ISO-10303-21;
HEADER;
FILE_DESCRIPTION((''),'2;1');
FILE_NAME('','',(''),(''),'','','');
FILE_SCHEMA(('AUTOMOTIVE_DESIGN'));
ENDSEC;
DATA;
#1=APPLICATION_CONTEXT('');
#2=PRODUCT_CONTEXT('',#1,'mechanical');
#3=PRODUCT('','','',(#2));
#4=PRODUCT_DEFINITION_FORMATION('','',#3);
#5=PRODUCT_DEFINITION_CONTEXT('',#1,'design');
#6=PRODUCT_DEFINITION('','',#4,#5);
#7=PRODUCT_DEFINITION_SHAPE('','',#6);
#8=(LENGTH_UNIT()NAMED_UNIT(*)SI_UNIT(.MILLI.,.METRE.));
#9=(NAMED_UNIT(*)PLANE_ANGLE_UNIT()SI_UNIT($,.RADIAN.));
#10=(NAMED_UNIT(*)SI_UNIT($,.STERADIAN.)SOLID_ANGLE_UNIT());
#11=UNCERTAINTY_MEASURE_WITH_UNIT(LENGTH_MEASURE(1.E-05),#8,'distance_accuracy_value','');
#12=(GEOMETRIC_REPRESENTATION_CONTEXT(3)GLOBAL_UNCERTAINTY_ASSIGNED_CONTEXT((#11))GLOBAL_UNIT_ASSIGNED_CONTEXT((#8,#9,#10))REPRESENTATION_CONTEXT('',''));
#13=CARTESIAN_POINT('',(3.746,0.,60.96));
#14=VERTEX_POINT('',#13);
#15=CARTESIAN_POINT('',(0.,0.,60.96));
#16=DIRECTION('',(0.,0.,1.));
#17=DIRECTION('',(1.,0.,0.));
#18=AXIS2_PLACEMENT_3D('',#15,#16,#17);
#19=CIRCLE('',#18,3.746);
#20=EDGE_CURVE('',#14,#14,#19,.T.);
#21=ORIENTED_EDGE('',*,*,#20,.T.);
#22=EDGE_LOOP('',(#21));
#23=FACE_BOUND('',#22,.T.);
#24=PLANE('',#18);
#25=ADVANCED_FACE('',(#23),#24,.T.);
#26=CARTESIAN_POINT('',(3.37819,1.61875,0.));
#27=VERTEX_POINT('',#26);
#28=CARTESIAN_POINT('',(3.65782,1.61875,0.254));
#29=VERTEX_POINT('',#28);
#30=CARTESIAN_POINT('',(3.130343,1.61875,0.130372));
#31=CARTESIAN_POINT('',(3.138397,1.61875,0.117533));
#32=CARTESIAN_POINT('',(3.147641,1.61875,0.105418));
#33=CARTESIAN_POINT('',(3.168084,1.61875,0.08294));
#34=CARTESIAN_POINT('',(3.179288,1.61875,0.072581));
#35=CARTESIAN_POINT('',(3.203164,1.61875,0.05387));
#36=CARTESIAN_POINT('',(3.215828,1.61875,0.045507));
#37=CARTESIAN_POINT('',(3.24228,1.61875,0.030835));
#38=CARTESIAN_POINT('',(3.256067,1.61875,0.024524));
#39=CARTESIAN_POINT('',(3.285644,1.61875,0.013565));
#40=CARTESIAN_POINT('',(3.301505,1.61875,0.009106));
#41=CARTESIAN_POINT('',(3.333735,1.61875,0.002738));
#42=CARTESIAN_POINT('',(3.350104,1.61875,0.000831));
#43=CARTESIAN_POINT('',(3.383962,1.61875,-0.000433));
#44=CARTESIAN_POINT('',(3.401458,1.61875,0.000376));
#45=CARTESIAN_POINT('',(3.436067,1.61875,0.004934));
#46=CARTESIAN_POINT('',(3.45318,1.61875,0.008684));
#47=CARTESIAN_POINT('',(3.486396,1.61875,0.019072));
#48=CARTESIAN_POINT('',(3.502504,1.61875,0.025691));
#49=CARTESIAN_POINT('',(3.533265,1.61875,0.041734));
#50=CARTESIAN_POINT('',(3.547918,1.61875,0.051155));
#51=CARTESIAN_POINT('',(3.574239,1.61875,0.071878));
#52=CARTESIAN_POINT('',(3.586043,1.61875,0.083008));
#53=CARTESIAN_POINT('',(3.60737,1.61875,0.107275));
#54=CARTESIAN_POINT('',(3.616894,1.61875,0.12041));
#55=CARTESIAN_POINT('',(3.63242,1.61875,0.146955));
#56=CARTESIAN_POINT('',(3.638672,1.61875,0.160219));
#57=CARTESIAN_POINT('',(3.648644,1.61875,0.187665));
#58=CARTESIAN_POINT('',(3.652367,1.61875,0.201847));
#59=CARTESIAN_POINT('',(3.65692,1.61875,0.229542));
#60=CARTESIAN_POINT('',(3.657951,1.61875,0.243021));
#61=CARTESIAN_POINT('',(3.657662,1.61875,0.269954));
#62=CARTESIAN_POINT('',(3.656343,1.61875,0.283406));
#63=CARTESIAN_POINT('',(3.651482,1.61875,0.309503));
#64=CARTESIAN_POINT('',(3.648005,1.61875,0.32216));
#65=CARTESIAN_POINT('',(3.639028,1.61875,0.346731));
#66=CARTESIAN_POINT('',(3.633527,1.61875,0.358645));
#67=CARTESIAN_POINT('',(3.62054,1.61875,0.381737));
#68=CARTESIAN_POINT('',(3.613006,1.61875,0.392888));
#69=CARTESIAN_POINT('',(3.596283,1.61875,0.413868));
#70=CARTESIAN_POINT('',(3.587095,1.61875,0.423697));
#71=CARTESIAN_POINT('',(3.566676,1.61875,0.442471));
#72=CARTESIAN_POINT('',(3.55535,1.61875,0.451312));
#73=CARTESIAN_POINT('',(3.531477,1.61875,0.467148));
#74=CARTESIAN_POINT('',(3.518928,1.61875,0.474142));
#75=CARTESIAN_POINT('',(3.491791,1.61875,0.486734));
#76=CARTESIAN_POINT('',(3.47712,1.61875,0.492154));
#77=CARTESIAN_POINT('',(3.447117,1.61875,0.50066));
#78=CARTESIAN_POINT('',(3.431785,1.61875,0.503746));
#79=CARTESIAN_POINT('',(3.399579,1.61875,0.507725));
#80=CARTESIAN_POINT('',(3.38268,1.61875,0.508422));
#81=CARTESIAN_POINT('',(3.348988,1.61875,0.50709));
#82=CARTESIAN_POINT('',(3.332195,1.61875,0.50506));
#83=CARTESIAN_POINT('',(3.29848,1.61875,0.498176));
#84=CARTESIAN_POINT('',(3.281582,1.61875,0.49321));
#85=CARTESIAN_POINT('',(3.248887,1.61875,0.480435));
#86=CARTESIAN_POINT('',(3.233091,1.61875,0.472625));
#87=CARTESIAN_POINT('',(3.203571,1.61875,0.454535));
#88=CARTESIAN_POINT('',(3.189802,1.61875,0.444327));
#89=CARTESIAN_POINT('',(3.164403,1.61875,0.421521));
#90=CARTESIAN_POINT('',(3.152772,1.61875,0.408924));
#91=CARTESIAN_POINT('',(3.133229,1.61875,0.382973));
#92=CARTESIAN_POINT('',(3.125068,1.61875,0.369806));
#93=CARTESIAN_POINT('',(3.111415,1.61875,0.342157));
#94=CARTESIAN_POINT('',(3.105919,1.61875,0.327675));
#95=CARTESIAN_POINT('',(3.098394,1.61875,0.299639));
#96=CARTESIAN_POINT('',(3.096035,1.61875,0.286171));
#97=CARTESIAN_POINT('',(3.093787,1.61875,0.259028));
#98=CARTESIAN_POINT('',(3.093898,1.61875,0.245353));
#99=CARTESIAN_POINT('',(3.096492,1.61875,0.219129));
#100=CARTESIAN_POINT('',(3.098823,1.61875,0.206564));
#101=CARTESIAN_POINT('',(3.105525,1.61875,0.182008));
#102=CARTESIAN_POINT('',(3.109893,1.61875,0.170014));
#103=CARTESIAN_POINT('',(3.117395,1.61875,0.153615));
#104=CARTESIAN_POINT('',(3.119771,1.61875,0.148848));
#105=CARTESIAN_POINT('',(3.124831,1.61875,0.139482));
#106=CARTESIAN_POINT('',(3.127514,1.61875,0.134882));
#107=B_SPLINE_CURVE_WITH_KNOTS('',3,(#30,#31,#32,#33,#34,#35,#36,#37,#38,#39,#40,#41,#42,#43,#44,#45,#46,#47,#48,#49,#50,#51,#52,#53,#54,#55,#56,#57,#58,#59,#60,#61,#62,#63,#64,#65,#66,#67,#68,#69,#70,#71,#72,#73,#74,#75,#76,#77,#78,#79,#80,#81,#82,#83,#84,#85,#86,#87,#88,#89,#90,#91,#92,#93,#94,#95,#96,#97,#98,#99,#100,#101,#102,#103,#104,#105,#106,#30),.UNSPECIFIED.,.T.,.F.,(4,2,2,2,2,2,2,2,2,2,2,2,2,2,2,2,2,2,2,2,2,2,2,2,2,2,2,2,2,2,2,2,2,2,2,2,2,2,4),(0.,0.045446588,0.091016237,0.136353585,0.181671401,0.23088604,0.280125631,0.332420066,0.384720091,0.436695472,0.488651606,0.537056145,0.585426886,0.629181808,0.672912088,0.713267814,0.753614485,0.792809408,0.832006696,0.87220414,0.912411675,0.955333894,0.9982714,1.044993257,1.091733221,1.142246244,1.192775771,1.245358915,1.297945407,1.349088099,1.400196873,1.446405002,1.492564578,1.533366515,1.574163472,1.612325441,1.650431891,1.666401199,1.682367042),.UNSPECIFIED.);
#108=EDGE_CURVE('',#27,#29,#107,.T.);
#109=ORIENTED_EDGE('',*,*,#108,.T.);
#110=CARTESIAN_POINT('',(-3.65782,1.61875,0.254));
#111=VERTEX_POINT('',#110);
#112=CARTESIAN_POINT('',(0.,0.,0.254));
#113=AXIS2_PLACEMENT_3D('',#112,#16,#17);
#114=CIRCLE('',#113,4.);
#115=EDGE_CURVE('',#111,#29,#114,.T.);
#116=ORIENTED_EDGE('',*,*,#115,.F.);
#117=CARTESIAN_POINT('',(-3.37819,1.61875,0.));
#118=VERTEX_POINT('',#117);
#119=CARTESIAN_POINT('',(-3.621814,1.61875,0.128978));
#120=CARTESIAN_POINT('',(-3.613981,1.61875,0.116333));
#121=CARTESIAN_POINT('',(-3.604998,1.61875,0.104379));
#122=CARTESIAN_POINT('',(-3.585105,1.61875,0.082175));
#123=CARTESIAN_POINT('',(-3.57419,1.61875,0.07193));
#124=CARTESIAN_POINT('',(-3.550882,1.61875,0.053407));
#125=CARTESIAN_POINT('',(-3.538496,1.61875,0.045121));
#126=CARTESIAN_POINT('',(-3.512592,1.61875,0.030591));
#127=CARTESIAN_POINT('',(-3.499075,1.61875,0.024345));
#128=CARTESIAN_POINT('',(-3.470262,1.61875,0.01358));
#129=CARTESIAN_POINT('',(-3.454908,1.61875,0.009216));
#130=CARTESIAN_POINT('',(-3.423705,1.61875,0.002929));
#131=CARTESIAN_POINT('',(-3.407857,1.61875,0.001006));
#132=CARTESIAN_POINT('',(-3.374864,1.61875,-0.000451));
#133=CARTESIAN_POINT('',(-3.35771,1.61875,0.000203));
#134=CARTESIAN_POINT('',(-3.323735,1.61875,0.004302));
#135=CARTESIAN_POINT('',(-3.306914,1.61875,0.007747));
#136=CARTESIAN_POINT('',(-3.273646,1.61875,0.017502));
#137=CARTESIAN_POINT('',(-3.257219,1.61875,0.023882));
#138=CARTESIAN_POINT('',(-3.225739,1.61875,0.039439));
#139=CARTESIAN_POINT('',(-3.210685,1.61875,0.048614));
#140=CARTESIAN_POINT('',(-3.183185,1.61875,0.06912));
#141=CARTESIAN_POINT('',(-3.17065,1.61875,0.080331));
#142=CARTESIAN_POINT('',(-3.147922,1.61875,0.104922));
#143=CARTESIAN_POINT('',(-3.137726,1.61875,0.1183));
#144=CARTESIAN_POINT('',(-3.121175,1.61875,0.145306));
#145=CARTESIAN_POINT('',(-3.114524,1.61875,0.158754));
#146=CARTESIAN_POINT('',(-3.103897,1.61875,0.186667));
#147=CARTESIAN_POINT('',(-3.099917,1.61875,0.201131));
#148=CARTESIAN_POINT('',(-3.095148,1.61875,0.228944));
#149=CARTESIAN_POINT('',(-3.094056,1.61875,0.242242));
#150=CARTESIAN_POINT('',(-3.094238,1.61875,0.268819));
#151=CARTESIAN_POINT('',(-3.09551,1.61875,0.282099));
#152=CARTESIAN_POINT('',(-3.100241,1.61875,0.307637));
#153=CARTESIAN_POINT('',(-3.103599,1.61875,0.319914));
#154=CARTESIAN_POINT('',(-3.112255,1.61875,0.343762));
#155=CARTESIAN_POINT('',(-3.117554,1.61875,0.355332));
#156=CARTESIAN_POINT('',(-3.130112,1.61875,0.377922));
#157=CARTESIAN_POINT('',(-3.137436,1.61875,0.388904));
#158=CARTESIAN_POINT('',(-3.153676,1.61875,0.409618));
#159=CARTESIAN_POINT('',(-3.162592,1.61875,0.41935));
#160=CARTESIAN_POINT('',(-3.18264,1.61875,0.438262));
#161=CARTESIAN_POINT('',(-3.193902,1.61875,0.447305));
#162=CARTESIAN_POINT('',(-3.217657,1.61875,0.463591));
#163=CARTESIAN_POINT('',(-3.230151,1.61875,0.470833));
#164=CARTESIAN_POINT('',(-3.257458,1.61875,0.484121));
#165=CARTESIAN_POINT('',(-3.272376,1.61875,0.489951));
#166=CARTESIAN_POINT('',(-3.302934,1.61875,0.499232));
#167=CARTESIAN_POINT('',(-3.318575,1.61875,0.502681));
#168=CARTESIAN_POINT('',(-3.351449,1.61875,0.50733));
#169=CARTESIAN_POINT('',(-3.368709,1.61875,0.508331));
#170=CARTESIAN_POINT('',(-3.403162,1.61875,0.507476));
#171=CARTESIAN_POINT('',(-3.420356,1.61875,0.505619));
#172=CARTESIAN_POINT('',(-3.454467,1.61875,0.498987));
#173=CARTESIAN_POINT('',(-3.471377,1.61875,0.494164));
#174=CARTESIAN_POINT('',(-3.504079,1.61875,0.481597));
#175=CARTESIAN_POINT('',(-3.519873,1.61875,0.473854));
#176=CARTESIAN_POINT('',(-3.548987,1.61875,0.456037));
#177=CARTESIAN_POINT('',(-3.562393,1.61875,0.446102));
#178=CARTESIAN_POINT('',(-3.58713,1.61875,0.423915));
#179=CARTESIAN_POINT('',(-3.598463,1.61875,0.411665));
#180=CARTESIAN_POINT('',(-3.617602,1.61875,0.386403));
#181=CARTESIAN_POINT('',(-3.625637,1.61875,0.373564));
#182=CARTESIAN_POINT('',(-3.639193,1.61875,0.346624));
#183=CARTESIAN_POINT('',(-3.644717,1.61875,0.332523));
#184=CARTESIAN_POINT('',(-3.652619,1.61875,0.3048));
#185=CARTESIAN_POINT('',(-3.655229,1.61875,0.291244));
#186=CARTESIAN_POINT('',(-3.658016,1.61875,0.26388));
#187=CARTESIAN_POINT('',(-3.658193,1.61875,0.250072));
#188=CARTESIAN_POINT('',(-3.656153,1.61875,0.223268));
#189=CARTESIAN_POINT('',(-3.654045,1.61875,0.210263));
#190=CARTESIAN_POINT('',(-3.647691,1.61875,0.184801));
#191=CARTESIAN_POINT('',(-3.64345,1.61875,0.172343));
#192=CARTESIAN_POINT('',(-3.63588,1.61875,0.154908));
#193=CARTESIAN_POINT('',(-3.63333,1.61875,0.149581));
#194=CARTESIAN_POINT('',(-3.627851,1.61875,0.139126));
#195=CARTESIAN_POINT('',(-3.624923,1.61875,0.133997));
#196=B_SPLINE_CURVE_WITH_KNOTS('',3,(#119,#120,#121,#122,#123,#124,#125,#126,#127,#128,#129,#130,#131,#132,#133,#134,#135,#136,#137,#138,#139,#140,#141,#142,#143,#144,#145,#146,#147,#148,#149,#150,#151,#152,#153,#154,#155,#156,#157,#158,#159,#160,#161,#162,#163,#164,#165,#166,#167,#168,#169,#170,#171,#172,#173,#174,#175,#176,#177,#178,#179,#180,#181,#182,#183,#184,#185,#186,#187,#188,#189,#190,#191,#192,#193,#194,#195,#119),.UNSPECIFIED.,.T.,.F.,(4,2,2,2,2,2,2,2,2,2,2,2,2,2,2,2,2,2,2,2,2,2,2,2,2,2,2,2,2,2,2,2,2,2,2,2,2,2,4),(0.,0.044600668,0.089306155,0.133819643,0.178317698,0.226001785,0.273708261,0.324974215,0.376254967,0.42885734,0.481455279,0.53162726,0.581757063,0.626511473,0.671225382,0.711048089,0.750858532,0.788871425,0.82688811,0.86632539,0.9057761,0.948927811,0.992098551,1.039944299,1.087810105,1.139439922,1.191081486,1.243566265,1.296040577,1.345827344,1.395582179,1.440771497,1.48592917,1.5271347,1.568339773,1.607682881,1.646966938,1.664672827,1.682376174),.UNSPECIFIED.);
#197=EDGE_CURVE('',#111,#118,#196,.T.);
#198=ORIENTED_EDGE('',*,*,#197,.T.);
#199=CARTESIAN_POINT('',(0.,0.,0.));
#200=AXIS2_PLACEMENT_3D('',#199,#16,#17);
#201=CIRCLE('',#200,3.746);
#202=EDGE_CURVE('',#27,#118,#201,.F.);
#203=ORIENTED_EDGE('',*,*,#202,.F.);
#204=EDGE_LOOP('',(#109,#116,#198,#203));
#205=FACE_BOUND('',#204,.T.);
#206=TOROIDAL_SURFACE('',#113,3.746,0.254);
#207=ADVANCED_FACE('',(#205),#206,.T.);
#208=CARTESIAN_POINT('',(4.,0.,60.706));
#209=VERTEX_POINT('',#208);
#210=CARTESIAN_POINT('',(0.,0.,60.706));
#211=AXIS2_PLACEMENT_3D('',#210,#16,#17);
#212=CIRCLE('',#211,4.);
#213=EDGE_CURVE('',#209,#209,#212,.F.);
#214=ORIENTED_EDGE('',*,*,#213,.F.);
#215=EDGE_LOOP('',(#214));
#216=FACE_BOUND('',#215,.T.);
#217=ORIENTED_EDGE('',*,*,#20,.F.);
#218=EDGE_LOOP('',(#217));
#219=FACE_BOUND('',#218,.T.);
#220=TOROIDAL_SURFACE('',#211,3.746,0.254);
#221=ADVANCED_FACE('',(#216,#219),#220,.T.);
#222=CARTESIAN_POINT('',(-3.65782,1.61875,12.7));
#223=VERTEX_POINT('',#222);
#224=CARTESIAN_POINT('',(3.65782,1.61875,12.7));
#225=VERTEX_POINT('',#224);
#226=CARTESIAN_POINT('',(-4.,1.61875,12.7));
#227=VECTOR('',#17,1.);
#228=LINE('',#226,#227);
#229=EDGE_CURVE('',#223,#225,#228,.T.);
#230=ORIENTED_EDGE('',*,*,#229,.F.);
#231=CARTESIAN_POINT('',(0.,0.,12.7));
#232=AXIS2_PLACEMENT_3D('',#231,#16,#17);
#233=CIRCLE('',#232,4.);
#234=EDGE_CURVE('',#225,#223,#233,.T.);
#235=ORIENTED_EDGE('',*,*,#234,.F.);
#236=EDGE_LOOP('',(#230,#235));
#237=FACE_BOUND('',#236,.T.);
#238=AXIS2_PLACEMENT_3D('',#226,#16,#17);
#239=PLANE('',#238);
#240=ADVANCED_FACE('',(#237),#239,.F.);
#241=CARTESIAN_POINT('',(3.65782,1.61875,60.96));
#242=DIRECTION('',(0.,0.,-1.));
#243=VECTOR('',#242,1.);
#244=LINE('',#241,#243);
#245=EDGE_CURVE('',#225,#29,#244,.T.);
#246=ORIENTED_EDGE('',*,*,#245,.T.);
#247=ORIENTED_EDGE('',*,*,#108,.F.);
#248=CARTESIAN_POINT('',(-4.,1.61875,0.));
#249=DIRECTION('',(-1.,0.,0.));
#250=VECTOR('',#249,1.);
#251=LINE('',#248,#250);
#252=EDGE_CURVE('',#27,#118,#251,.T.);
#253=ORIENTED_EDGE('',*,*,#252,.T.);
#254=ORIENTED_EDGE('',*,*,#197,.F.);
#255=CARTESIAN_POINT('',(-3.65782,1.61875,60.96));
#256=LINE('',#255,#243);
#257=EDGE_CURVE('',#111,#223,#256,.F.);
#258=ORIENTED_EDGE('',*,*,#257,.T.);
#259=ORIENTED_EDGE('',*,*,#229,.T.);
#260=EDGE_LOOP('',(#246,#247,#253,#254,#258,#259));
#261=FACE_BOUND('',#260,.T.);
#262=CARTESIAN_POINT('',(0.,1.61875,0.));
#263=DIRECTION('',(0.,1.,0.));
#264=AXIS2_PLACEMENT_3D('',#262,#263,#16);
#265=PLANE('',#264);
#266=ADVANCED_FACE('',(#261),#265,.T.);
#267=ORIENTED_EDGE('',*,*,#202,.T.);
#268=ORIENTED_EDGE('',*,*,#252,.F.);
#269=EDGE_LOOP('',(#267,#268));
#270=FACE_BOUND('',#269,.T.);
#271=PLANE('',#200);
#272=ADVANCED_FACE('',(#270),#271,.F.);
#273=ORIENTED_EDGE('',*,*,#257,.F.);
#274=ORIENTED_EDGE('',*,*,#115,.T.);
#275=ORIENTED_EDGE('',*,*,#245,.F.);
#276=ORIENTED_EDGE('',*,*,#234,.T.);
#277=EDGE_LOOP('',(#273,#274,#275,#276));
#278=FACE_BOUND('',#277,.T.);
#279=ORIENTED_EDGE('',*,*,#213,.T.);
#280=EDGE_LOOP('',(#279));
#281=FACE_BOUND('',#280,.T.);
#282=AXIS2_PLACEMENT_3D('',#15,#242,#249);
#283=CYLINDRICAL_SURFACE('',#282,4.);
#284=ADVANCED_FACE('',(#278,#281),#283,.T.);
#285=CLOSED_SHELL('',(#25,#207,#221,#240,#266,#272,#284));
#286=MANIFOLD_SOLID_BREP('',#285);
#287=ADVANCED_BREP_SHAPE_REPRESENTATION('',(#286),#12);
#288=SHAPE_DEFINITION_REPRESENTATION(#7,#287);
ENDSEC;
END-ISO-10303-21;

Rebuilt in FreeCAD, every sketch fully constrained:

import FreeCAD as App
import Part
import Sketcher
from FreeCAD import Vector
Q = App.Units.Quantity


def edges_at(feature, points):
    """Names of the edges that pass closest to the given points."""
    edges = feature.Shape.Edges
    near = lambda p: min(range(len(edges)), key=lambda i: edges[i].distToShape(Part.Vertex(*p))[0])
    return sorted({f"Edge{near(p) + 1}" for p in points})

doc = App.newDocument("Part")
params = doc.addObject("Spreadsheet::Sheet", "Params")
for row, (alias, value) in enumerate([
    ("pad1_length", "2.4 in"),
    ("fillet_radius", "0.01 in"),
    ("sketch2_height", "0.5 in"),
    ("pocket1_length", "0.09375 in"),
], start=1):
    params.set(f"A{row}", alias)
    params.set(f"B{row}", "=" + value)
    params.setAlias(f"B{row}", alias)

body = doc.addObject("PartDesign::Body", "Body")

# Sketch on XY plane
sketch1 = body.newObject("Sketcher::SketchObject", "Sketch")
sketch1.AttachmentSupport = (doc.getObject("XY_Plane"), [""])
sketch1.MapMode = "FlatFace"
sketch1.addGeometry(Part.Circle(Vector(0, 0, 0), Vector(0, 0, 1), 4), False)
sketch1.addConstraint(Sketcher.Constraint("Coincident", 0, 3, -1, 1))
sketch1.addConstraint(Sketcher.Constraint("Diameter", 0, Q("8 mm")))
pad1 = body.newObject("PartDesign::Pad", "Pad")
pad1.Profile = sketch1
pad1.setExpression("Length", "Params.pad1_length")
doc.recompute()

fillet = body.newObject("PartDesign::Fillet", "Fillet")
fillet.Base = (pad1, edges_at(pad1, [(-4, 0, 0), (-4, 0, 60.96)]))
fillet.setExpression("Radius", "Params.fillet_radius")

# Sketch on XZ plane
sketch2 = body.newObject("Sketcher::SketchObject", "Sketch001")
sketch2.AttachmentSupport = (doc.getObject("XZ_Plane"), [""])
sketch2.MapMode = "FlatFace"
sketch2.AttachmentOffset = App.Placement(Vector(0, 0, -4), App.Rotation())
sketch2.addGeometry(Part.LineSegment(Vector(-4, 0, 0), Vector(-4, 13, 0)), False)
sketch2.addGeometry(Part.LineSegment(Vector(-4, 13, 0), Vector(4, 13, 0)), False)
sketch2.addGeometry(Part.LineSegment(Vector(4, 13, 0), Vector(4, 0, 0)), False)
sketch2.addGeometry(Part.LineSegment(Vector(4, 0, 0), Vector(-4, 0, 0)), False)
sketch2.addConstraint(Sketcher.Constraint("Coincident", 0, 2, 1, 1))
sketch2.addConstraint(Sketcher.Constraint("Coincident", 1, 2, 2, 1))
sketch2.addConstraint(Sketcher.Constraint("Coincident", 2, 2, 3, 1))
sketch2.addConstraint(Sketcher.Constraint("Coincident", 3, 2, 0, 1))
sketch2.addConstraint(Sketcher.Constraint("Vertical", 0))
sketch2.addConstraint(Sketcher.Constraint("Horizontal", 1))
sketch2.addConstraint(Sketcher.Constraint("Vertical", 2))
sketch2.addConstraint(Sketcher.Constraint("Horizontal", 3))
sketch2.addConstraint(Sketcher.Constraint("Symmetric", 2, 2, 3, 2, -1, 1))
sketch2.addConstraint(Sketcher.Constraint("DistanceY", 0, 1, 0, 2, Q("0.5 in")))
sketch2.addConstraint(Sketcher.Constraint("DistanceX", 1, 1, 1, 2, Q("8 mm")))
sketch2.setExpression("Constraints[9]", "Params.sketch2_height")
pocket1 = body.newObject("PartDesign::Pocket", "Pocket")
pocket1.Profile = sketch2
pocket1.setExpression("Length", "Params.pocket1_length")
pocket1.Reversed = True

doc.recompute()
